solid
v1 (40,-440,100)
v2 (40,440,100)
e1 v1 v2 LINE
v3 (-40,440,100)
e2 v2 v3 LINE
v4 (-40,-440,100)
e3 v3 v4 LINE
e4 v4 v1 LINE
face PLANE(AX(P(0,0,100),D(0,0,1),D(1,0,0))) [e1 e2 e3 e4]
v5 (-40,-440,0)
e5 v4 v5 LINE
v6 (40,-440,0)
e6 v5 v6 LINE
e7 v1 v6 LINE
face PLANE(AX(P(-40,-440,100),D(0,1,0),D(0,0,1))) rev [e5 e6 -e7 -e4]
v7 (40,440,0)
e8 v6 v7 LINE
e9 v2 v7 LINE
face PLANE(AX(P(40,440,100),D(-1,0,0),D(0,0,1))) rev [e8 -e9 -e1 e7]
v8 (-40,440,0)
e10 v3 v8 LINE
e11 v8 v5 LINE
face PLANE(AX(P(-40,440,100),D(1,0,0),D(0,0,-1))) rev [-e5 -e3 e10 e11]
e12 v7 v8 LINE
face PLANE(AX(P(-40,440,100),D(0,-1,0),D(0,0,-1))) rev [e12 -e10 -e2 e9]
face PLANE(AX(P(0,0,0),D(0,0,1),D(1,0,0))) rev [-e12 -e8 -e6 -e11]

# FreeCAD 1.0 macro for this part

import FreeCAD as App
import Part
import Sketcher
from FreeCAD import Vector
Q = App.Units.Quantity


def add_polygon(sketch, points):
    """Adds a closed chain of lines whose ends are joined by coincident constraints."""
    first, n = sketch.GeometryCount, len(points)
    for a, b in zip(points, points[1:] + points[:1]):
        sketch.addGeometry(Part.LineSegment(App.Vector(*a, 0), App.Vector(*b, 0)), False)
    for i in range(n):
        sketch.addConstraint(Sketcher.Constraint("Coincident", first + i, 2, first + (i + 1) % n, 1))

doc = App.newDocument("Part")
params = doc.addObject("Spreadsheet::Sheet", "Params")
for row, (alias, value) in enumerate([
    ("sketch1_width", "80 mm"),
    ("sketch1_height", "880 mm"),
    ("pad1_length", "100 mm"),
], start=1):
    params.set(f"A{row}", alias)
    params.set(f"B{row}", "=" + value)
    params.setAlias(f"B{row}", alias)

body = doc.addObject("PartDesign::Body", "Body")

# Sketch on XY plane
sketch1 = doc.addObject("Sketcher::SketchObject", "Sketch")
body.addObject(sketch1)
sketch1.AttachmentSupport = (doc.XY_Plane, [""])
sketch1.MapMode = "FlatFace"
add_polygon(sketch1, [(-40, 440), (-40, -440), (40, -440), (40, 440)])  # lines 0-3
sketch1.addConstraint([
    Sketcher.Constraint("Vertical", 0),
    Sketcher.Constraint("Horizontal", 1),
    Sketcher.Constraint("Vertical", 2),
    Sketcher.Constraint("Horizontal", 3),
    Sketcher.Constraint("Symmetric", 0, 2, 2, 2, -1, 1),
    Sketcher.Constraint("DistanceX", 1, 1, 1, 2, Q("80 mm")),
    Sketcher.Constraint("DistanceY", 0, 2, 0, 1, Q("880 mm")),
])
sketch1.setExpression("Constraints[9]", "Params.sketch1_width")
sketch1.setExpression("Constraints[10]", "Params.sketch1_height")
pad1 = doc.addObject("PartDesign::Pad", "Pad")
body.addObject(pad1)
pad1.Profile = sketch1
pad1.setExpression("Length", "Params.pad1_length")

doc.recompute()
